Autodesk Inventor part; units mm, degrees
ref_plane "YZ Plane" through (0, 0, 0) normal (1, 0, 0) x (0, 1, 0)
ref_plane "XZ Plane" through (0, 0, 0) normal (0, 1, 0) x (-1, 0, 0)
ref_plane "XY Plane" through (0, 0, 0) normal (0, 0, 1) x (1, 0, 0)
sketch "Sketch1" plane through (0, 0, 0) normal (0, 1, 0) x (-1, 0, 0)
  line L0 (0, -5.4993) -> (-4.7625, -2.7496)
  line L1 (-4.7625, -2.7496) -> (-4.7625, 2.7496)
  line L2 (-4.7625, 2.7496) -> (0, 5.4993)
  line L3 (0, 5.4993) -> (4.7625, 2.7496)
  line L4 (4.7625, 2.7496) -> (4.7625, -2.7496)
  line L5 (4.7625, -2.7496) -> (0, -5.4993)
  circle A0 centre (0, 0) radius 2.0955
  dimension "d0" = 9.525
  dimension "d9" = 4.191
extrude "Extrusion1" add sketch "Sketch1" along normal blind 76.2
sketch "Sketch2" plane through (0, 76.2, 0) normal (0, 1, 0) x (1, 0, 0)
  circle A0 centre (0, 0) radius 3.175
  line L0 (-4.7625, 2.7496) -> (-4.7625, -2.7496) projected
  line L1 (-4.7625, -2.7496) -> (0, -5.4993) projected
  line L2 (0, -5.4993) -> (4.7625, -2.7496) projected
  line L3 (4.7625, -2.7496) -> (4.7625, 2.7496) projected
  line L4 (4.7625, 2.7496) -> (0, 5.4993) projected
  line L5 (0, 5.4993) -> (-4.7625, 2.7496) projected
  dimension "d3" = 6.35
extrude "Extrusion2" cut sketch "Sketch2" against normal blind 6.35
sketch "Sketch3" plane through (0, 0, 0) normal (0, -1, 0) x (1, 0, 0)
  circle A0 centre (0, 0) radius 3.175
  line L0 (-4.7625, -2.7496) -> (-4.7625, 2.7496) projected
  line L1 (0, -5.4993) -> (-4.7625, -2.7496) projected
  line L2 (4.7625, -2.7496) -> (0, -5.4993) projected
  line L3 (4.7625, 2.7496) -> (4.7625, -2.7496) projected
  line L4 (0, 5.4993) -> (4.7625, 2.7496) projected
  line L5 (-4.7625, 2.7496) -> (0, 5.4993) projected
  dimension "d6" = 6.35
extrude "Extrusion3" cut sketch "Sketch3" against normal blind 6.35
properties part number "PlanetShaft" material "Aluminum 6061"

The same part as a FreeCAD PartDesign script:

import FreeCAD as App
import Part
import Sketcher

V = App.Vector
Q = App.Units.Quantity

doc = App.newDocument("Part")
body = doc.addObject("PartDesign::Body", "Body")

# Sketch on XZ plane
sketch1 = body.newObject("Sketcher::SketchObject", "Sketch")
sketch1.AttachmentSupport = (doc.getObject("XZ_Plane"), [""])
sketch1.MapMode = "FlatFace"
sketch1.addGeometry(Part.LineSegment(V(4.7625, -2.7496, 0), V(0, -5.4993, 0)), False)
sketch1.addGeometry(Part.LineSegment(V(0, -5.4993, 0), V(-4.7625, -2.7496, 0)), False)
sketch1.addGeometry(Part.LineSegment(V(-4.7625, -2.7496, 0), V(-4.7625, 2.7496, 0)), False)
sketch1.addGeometry(Part.LineSegment(V(-4.7625, 2.7496, 0), V(0, 5.4993, 0)), False)
sketch1.addGeometry(Part.LineSegment(V(0, 5.4993, 0), V(4.7625, 2.7496, 0)), False)
sketch1.addGeometry(Part.LineSegment(V(4.7625, 2.7496, 0), V(4.7625, -2.7496, 0)), False)
sketch1.addGeometry(Part.Circle(V(0, 0, 0), V(0, 0, 1), 2.0955), False)
sketch1.addConstraint(Sketcher.Constraint("Coincident", 0, 2, 1, 1))
sketch1.addConstraint(Sketcher.Constraint("Coincident", 1, 2, 2, 1))
sketch1.addConstraint(Sketcher.Constraint("Coincident", 2, 2, 3, 1))
sketch1.addConstraint(Sketcher.Constraint("Coincident", 3, 2, 4, 1))
sketch1.addConstraint(Sketcher.Constraint("Coincident", 4, 2, 5, 1))
sketch1.addConstraint(Sketcher.Constraint("Coincident", 5, 2, 0, 1))
sketch1.addConstraint(Sketcher.Constraint("Vertical", 2))
sketch1.addConstraint(Sketcher.Constraint("Vertical", 5))
sketch1.addConstraint(Sketcher.Constraint("Coincident", 6, 3, -1, 1))
sketch1.addConstraint(Sketcher.Constraint("Symmetric", 0, 2, 3, 2, -1, 1))
sketch1.addConstraint(Sketcher.Constraint("Symmetric", 1, 2, 4, 2, -1, 1))
sketch1.addConstraint(Sketcher.Constraint("PointOnObject", 0, 2, -2))
sketch1.addConstraint(Sketcher.Constraint("Parallel", 0, 3))
sketch1.addConstraint(Sketcher.Constraint("Horizontal", 2, 2, 4, 2))
sketch1.addConstraint(Sketcher.Constraint("Diameter", 6, Q("0.165 in")))
sketch1.addConstraint(Sketcher.Constraint("Angle", 0, Q("-149.9994 deg")))
sketch1.addConstraint(Sketcher.Constraint("DistanceX", 2, 2, 4, 2, Q("0.375 in")))
sketch1.addConstraint(Sketcher.Constraint("DistanceY", 2, 1, 2, 2, Q("0.2165 in")))
pad1 = body.newObject("PartDesign::Pad", "Pad")
pad1.Profile = sketch1
pad1.Length = Q("3 in")
pad1.Reversed = True

# Sketch on XZ plane
sketch2 = body.newObject("Sketcher::SketchObject", "Sketch001")
sketch2.AttachmentSupport = (doc.getObject("XZ_Plane"), [""])
sketch2.MapMode = "FlatFace"
sketch2.AttachmentOffset = App.Placement(V(0, 0, -3 * 25.4), App.Rotation())
sketch2.addGeometry(Part.LineSegment(V(0, -5.4993, 0), V(-4.7625, -2.7496, 0)), False)
sketch2.addGeometry(Part.LineSegment(V(-4.7625, -2.7496, 0), V(-4.7625, 2.7496, 0)), False)
sketch2.addGeometry(Part.LineSegment(V(-4.7625, 2.7496, 0), V(0, 5.4993, 0)), False)
sketch2.addGeometry(Part.LineSegment(V(0, 5.4993, 0), V(4.7625, 2.7496, 0)), False)
sketch2.addGeometry(Part.LineSegment(V(4.7625, 2.7496, 0), V(4.7625, -2.7496, 0)), False)
sketch2.addGeometry(Part.LineSegment(V(4.7625, -2.7496, 0), V(0, -5.4993, 0)), False)
sketch2.addGeometry(Part.Circle(V(0, 0, 0), V(0, 0, 1), 3.175), False)
sketch2.addConstraint(Sketcher.Constraint("Coincident", 0, 2, 1, 1))
sketch2.addConstraint(Sketcher.Constraint("Coincident", 1, 2, 2, 1))
sketch2.addConstraint(Sketcher.Constraint("Coincident", 2, 2, 3, 1))
sketch2.addConstraint(Sketcher.Constraint("Coincident", 3, 2, 4, 1))
sketch2.addConstraint(Sketcher.Constraint("Coincident", 4, 2, 5, 1))
sketch2.addConstraint(Sketcher.Constraint("Coincident", 5, 2, 0, 1))
sketch2.addConstraint(Sketcher.Constraint("Vertical", 1))
sketch2.addConstraint(Sketcher.Constraint("Vertical", 4))
sketch2.addConstraint(Sketcher.Constraint("Coincident", 6, 3, -1, 1))
sketch2.addConstraint(Sketcher.Constraint("Symmetric", 0, 2, 3, 2, -1, 1))
sketch2.addConstraint(Sketcher.Constraint("Symmetric", 2, 2, 5, 2, -1, 1))
sketch2.addConstraint(Sketcher.Constraint("PointOnObject", 2, 2, -2))
sketch2.addConstraint(Sketcher.Constraint("Parallel", 2, 5))
sketch2.addConstraint(Sketcher.Constraint("Horizontal", 1, 2, 3, 2))
sketch2.addConstraint(Sketcher.Constraint("Diameter", 6, Q("0.25 in")))
sketch2.addConstraint(Sketcher.Constraint("Angle", 0, Q("149.9994 deg")))
sketch2.addConstraint(Sketcher.Constraint("DistanceY", 1, 1, 1, 2, Q("0.2165 in")))
sketch2.addConstraint(Sketcher.Constraint("DistanceX", 0, 2, -1, 1, Q("0.1875 in")))
pocket1 = body.newObject("PartDesign::Pocket", "Pocket")
pocket1.Profile = sketch2
pocket1.Length = Q("0.25 in")
pocket1.Reversed = True

# Sketch on XZ plane
sketch3 = body.newObject("Sketcher::SketchObject", "Sketch002")
sketch3.AttachmentSupport = (doc.getObject("XZ_Plane"), [""])
sketch3.MapMode = "FlatFace"
sketch3.addGeometry(Part.LineSegment(V(-4.7625, 2.7496, 0), V(-4.7625, -2.7496, 0)), False)
sketch3.addGeometry(Part.LineSegment(V(-4.7625, -2.7496, 0), V(0, -5.4993, 0)), False)
sketch3.addGeometry(Part.LineSegment(V(0, -5.4993, 0), V(4.7625, -2.7496, 0)), False)
sketch3.addGeometry(Part.LineSegment(V(4.7625, -2.7496, 0), V(4.7625, 2.7496, 0)), False)
sketch3.addGeometry(Part.LineSegment(V(4.7625, 2.7496, 0), V(0, 5.4993, 0)), False)
sketch3.addGeometry(Part.LineSegment(V(0, 5.4993, 0), V(-4.7625, 2.7496, 0)), False)
sketch3.addGeometry(Part.Circle(V(0, 0, 0), V(0, 0, 1), 3.175), False)
sketch3.addConstraint(Sketcher.Constraint("Coincident", 0, 2, 1, 1))
sketch3.addConstraint(Sketcher.Constraint("Coincident", 1, 2, 2, 1))
sketch3.addConstraint(Sketcher.Constraint("Coincident", 2, 2, 3, 1))
sketch3.addConstraint(Sketcher.Constraint("Coincident", 3, 2, 4, 1))
sketch3.addConstraint(Sketcher.Constraint("Coincident", 4, 2, 5, 1))
sketch3.addConstraint(Sketcher.Constraint("Coincident", 5, 2, 0, 1))
sketch3.addConstraint(Sketcher.Constraint("Vertical", 0))
sketch3.addConstraint(Sketcher.Constraint("Vertical", 3))
sketch3.addConstraint(Sketcher.Constraint("Coincident", 6, 3, -1, 1))
sketch3.addConstraint(Sketcher.Constraint("Symmetric", 0, 2, 3, 2, -1, 1))
sketch3.addConstraint(Sketcher.Constraint("Symmetric", 1, 2, 4, 2, -1, 1))
sketch3.addConstraint(Sketcher.Constraint("PointOnObject", 1, 2, -2))
sketch3.addConstraint(Sketcher.Constraint("Parallel", 2, 5))
sketch3.addConstraint(Sketcher.Constraint("Horizontal", 0, 2, 2, 2))
sketch3.addConstraint(Sketcher.Constraint("Diameter", 6, Q("0.25 in")))
sketch3.addConstraint(Sketcher.Constraint("Angle", 1, Q("-30.0006 deg")))
sketch3.addConstraint(Sketcher.Constraint("DistanceY", 0, 2, 0, 1, Q("0.2165 in")))
sketch3.addConstraint(Sketcher.Constraint("DistanceX", 0, 2, -1, 1, Q("0.1875 in")))
pocket2 = body.newObject("PartDesign::Pocket", "Pocket001")
pocket2.Profile = sketch3
pocket2.Length = Q("0.25 in")

doc.recompute()
